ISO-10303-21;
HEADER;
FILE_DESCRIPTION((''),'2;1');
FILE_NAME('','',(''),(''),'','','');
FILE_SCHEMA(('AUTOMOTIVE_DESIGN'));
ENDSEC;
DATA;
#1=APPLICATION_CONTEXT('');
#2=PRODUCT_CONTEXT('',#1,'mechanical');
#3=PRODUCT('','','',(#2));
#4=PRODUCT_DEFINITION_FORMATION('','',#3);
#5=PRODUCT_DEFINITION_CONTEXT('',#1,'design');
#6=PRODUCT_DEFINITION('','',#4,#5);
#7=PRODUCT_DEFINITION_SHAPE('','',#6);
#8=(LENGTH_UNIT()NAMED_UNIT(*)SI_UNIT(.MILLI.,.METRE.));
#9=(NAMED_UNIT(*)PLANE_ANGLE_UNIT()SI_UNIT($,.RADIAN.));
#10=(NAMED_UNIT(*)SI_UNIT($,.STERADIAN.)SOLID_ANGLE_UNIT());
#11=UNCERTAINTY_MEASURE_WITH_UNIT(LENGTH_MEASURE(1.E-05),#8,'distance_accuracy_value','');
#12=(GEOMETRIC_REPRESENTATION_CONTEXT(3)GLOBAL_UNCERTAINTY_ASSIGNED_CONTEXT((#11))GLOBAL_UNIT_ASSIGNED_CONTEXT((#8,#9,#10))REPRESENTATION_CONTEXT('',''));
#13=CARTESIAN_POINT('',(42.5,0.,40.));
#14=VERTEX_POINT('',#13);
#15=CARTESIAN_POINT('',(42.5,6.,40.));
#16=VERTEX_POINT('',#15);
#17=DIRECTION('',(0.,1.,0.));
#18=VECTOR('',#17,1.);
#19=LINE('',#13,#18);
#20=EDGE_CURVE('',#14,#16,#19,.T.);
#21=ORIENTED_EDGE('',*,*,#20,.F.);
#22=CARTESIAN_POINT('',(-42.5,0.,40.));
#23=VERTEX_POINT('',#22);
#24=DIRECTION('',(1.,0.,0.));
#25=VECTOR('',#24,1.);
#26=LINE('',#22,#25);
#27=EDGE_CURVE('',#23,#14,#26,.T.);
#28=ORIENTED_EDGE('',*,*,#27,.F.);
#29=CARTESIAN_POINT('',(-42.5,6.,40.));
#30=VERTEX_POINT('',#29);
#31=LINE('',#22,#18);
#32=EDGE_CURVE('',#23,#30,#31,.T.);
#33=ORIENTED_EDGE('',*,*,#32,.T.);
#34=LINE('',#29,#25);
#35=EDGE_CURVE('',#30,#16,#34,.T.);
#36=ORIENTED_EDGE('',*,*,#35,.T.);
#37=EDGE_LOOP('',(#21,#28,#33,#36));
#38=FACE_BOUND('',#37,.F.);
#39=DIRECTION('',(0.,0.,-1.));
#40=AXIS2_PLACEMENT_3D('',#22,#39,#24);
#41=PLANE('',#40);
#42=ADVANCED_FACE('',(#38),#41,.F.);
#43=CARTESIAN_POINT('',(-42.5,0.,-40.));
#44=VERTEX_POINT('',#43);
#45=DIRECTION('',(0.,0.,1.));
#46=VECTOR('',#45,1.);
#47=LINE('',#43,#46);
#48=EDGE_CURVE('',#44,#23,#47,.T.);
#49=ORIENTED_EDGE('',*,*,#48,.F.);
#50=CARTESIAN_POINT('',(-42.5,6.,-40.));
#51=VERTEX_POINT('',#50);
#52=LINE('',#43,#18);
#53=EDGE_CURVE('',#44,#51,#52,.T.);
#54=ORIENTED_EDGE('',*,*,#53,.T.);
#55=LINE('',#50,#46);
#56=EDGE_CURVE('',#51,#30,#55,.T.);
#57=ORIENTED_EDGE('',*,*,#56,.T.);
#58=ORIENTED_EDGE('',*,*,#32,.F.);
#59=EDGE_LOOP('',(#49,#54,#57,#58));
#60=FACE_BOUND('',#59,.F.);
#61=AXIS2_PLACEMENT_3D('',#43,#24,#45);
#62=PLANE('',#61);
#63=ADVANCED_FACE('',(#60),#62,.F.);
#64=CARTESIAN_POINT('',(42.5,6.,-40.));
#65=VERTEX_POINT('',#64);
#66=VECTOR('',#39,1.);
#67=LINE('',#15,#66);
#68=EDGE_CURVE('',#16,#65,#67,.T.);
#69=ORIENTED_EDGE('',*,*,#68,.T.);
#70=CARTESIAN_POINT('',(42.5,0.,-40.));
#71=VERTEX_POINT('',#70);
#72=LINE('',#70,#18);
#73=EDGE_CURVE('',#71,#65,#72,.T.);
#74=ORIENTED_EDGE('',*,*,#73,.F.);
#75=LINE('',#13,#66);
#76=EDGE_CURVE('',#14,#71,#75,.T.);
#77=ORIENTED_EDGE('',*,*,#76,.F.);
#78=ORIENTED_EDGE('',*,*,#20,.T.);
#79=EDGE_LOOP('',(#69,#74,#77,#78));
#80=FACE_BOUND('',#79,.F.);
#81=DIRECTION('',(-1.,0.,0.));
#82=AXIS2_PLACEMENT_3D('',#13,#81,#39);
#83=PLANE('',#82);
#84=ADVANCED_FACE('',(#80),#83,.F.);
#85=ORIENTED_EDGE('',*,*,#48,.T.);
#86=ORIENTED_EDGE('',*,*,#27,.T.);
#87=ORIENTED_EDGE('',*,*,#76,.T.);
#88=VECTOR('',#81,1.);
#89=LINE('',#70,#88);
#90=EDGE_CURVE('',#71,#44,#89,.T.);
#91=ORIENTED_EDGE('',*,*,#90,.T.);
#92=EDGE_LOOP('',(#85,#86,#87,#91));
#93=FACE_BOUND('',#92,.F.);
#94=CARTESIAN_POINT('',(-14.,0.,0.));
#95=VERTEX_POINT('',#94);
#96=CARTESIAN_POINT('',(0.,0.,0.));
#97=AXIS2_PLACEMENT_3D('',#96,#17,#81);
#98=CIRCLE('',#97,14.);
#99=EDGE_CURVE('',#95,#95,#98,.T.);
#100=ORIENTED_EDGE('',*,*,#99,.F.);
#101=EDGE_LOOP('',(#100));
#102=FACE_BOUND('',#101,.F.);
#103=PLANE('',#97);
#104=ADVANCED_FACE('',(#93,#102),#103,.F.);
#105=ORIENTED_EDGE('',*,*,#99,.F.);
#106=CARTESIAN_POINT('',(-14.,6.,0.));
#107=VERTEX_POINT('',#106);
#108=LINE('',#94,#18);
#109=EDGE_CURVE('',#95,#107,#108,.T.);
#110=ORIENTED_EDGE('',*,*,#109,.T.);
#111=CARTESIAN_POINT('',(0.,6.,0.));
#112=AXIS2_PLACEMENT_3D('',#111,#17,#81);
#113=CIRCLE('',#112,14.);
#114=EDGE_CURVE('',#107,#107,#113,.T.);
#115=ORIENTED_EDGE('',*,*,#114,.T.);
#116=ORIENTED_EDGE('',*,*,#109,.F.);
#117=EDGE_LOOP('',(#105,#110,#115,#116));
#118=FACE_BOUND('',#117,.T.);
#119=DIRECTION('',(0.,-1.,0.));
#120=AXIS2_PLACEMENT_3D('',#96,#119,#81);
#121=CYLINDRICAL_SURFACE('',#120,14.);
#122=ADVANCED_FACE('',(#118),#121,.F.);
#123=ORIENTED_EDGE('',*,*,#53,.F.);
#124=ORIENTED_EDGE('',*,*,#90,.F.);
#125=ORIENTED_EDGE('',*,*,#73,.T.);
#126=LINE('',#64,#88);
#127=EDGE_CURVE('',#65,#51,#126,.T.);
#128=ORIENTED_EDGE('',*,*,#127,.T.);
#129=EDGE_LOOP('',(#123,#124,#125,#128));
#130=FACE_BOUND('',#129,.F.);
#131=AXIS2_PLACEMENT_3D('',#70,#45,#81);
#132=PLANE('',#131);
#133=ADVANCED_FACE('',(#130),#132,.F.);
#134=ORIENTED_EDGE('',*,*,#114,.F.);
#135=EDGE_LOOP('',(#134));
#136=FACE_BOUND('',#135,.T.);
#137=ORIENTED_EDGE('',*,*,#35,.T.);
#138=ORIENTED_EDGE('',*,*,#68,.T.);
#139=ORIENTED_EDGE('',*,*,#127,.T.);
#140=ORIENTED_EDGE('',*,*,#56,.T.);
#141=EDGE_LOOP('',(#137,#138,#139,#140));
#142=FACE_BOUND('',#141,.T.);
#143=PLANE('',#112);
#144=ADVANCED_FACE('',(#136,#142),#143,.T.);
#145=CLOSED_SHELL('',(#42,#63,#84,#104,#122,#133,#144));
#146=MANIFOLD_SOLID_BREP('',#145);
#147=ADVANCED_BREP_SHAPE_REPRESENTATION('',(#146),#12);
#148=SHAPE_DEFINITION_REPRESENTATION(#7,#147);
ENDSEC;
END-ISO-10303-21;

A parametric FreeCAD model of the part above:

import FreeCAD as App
import Part
import Sketcher

V = App.Vector


def add_polygon(sketch, points):
    """Adds a closed chain of lines whose ends are joined by coincident constraints."""
    first, n = sketch.GeometryCount, len(points)
    for a, b in zip(points, points[1:] + points[:1]):
        sketch.addGeometry(Part.LineSegment(App.Vector(*a, 0), App.Vector(*b, 0)), False)
    for i in range(n):
        sketch.addConstraint(Sketcher.Constraint("Coincident", first + i, 2, first + (i + 1) % n, 1))

doc = App.newDocument("Part")
body = doc.addObject("PartDesign::Body", "Body")

# Sketch on XZ plane
sketch1 = body.newObject("Sketcher::SketchObject", "Sketch")
sketch1.AttachmentSupport = (doc.getObject("XZ_Plane"), [""])
sketch1.MapMode = "FlatFace"
add_polygon(sketch1, [(42.5, 40), (42.5, -40), (-42.5, -40), (-42.5, 40)])  # lines 0-3
sketch1.addGeometry(Part.Circle(V(0, 0, 0), V(0, 0, 1), 14), False)  # 4
sketch1.addConstraint(Sketcher.Constraint("Vertical", 0))
sketch1.addConstraint(Sketcher.Constraint("Horizontal", 1))
sketch1.addConstraint(Sketcher.Constraint("Vertical", 2))
sketch1.addConstraint(Sketcher.Constraint("Horizontal", 3))
sketch1.addConstraint(Sketcher.Constraint("Coincident", 4, 3, -1, 1))
sketch1.addConstraint(Sketcher.Constraint("Symmetric", 0, 2, 2, 2, -1, 1))
sketch1.addConstraint(Sketcher.Constraint("Diameter", 4, 28.0))
sketch1.addConstraint(Sketcher.Constraint("DistanceX", 1, 2, 1, 1, 85.0))
sketch1.addConstraint(Sketcher.Constraint("DistanceY", 0, 2, 0, 1, 80.0))
pad1 = body.newObject("PartDesign::Pad", "Pad")
pad1.Profile = sketch1
pad1.Length = 6
pad1.Reversed = True

doc.recompute()
